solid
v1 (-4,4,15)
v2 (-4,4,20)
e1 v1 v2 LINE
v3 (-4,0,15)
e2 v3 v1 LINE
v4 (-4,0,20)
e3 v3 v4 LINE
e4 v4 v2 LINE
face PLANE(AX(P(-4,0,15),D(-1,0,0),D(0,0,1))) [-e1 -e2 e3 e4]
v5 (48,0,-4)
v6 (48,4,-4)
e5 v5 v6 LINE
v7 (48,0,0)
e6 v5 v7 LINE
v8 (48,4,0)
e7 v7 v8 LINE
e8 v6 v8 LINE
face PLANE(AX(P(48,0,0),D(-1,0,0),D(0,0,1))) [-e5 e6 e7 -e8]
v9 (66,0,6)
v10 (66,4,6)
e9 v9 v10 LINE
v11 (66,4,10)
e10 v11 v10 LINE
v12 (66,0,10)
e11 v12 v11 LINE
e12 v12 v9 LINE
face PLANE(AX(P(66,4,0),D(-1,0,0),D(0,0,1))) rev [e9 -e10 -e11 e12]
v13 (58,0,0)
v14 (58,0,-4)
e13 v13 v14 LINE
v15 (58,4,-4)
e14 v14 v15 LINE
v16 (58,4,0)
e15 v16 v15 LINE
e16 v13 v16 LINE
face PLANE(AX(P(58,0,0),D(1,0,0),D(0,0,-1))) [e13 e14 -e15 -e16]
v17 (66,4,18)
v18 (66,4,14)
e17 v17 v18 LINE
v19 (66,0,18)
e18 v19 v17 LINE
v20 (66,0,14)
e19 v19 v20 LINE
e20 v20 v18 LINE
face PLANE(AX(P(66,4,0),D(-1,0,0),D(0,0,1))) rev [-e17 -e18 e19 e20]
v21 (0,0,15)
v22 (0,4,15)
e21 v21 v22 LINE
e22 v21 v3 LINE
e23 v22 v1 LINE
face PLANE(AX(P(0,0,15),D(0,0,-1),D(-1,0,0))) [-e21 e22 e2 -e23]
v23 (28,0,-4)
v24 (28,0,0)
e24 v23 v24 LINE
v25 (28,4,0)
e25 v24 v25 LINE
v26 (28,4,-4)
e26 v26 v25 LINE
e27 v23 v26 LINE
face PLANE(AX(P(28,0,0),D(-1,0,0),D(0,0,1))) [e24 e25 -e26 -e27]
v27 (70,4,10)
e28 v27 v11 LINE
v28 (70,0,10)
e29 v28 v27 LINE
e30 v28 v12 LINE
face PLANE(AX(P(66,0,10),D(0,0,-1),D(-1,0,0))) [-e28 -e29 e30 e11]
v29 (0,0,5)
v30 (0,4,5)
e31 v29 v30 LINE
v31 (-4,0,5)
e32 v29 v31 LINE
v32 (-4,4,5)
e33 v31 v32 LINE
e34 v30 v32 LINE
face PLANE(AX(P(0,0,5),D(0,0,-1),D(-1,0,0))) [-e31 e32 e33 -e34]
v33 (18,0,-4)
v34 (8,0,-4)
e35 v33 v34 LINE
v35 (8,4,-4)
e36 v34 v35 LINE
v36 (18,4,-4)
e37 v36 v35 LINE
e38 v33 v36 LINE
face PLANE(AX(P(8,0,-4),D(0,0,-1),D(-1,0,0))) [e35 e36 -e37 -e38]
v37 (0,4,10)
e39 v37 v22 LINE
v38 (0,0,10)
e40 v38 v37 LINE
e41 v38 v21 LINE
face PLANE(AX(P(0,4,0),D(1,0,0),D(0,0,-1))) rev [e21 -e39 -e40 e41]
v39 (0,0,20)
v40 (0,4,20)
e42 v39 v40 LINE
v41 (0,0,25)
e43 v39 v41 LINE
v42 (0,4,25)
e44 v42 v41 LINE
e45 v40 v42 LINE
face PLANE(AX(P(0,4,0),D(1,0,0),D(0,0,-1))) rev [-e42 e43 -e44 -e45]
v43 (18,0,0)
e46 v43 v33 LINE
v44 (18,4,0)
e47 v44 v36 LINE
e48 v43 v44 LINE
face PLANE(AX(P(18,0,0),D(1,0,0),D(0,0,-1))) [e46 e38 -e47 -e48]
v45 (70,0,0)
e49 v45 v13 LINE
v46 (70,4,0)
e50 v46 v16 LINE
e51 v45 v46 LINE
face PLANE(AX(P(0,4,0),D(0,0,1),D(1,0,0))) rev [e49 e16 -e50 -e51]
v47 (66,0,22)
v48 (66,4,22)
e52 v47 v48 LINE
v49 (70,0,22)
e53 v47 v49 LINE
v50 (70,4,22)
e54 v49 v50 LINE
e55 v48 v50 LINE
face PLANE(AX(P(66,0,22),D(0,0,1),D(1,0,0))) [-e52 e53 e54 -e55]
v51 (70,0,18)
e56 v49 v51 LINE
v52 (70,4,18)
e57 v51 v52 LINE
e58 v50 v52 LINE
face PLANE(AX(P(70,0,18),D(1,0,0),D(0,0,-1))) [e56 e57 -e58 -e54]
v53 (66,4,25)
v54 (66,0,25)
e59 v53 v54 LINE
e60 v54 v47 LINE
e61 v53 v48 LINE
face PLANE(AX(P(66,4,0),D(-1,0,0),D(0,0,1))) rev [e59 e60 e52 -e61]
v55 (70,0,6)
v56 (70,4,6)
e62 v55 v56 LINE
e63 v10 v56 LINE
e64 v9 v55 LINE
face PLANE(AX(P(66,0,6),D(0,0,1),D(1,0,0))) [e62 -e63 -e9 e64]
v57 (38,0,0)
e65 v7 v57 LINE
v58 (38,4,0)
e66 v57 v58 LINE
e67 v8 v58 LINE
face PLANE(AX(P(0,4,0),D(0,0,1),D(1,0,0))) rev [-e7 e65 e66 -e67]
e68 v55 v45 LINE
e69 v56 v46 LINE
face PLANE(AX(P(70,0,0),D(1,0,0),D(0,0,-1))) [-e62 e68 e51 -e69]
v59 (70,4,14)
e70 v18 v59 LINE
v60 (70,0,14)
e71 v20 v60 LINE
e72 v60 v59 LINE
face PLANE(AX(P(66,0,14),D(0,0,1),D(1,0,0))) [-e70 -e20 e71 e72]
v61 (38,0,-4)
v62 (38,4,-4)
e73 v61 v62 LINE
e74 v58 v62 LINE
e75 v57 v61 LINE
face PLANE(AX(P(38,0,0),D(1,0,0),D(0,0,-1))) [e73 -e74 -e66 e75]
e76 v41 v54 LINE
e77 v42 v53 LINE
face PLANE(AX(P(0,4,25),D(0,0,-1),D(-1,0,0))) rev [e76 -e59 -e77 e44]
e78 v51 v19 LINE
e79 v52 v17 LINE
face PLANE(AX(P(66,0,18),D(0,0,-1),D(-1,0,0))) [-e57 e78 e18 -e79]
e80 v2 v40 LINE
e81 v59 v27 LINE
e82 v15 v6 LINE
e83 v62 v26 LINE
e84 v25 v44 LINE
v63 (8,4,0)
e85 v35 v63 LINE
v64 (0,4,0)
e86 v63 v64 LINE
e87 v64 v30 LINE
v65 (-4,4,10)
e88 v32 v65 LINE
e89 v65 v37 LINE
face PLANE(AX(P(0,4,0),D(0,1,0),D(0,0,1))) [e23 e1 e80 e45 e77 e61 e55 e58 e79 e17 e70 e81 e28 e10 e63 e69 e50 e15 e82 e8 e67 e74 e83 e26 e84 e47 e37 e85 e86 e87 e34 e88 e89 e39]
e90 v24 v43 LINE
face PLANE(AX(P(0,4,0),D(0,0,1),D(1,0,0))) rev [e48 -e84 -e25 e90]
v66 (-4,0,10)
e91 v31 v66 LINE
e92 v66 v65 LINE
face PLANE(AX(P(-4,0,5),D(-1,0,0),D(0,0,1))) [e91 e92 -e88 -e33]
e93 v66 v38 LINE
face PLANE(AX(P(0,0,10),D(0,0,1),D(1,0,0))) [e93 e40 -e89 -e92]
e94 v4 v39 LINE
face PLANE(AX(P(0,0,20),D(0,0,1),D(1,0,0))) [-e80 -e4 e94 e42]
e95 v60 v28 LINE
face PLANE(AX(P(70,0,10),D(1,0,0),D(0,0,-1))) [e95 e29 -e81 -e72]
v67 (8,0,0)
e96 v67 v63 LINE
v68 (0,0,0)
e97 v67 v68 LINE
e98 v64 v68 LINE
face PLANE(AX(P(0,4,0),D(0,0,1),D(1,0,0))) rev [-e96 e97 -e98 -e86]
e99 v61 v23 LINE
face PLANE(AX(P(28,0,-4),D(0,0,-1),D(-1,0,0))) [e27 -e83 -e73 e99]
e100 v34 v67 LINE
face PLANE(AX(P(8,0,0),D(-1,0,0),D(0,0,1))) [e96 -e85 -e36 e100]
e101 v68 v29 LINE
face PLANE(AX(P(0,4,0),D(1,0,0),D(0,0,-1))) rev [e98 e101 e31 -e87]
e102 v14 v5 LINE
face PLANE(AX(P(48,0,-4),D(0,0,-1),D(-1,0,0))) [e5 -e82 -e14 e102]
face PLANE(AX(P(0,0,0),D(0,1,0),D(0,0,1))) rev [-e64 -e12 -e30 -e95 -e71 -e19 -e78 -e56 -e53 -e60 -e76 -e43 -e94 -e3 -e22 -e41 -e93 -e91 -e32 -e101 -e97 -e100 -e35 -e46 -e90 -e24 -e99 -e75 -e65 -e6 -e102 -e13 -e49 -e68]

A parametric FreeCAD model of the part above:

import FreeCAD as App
import Part
import Sketcher
from FreeCAD import Vector

doc = App.newDocument("Part")
body = doc.addObject("PartDesign::Body", "Body")

# Sketch on XZ plane
sketch1 = body.newObject("Sketcher::SketchObject", "Sketch")
sketch1.AttachmentSupport = (doc.getObject("XZ_Plane"), [""])
sketch1.MapMode = "FlatFace"
sketch1.addGeometry(Part.LineSegment(Vector(0, 0, 0), Vector(0, 25, 0)), False)
sketch1.addGeometry(Part.LineSegment(Vector(0, 25, 0), Vector(66, 25, 0)), False)
sketch1.addGeometry(Part.LineSegment(Vector(66, 25, 0), Vector(66, 0, 0)), False)
sketch1.addGeometry(Part.LineSegment(Vector(66, 0, 0), Vector(0, 0, 0)), False)
sketch1.addConstraint(Sketcher.Constraint("Coincident", 0, 2, 1, 1))
sketch1.addConstraint(Sketcher.Constraint("Coincident", 1, 2, 2, 1))
sketch1.addConstraint(Sketcher.Constraint("Coincident", 2, 2, 3, 1))
sketch1.addConstraint(Sketcher.Constraint("Coincident", 3, 2, 0, 1))
sketch1.addConstraint(Sketcher.Constraint("Vertical", 0))
sketch1.addConstraint(Sketcher.Constraint("Horizontal", 1))
sketch1.addConstraint(Sketcher.Constraint("Vertical", 2))
sketch1.addConstraint(Sketcher.Constraint("Horizontal", 3))
sketch1.addConstraint(Sketcher.Constraint("Coincident", 3, 2, -1, 1))
sketch1.addConstraint(Sketcher.Constraint("DistanceX", 1, 1, 1, 2, 66.0))
sketch1.addConstraint(Sketcher.Constraint("DistanceY", 0, 1, 0, 2, 25.0))
pad1 = body.newObject("PartDesign::Pad", "Pad")
pad1.Profile = sketch1
pad1.Length = 4
pad1.Reversed = True

# Sketch on XZ plane
sketch2 = body.newObject("Sketcher::SketchObject", "Sketch001")
sketch2.AttachmentSupport = (doc.getObject("XZ_Plane"), [""])
sketch2.MapMode = "FlatFace"
sketch2.AttachmentOffset = App.Placement(Vector(0, 0, -4), App.Rotation())
sketch2.addGeometry(Part.LineSegment(Vector(-4, 5, 0), Vector(-4, 10, 0)), False)
sketch2.addGeometry(Part.LineSegment(Vector(-4, 10, 0), Vector(0, 10, 0)), False)
sketch2.addGeometry(Part.LineSegment(Vector(0, 10, 0), Vector(0, 5, 0)), False)
sketch2.addGeometry(Part.LineSegment(Vector(0, 5, 0), Vector(-4, 5, 0)), False)
sketch2.addConstraint(Sketcher.Constraint("Coincident", 0, 2, 1, 1))
sketch2.addConstraint(Sketcher.Constraint("Coincident", 1, 2, 2, 1))
sketch2.addConstraint(Sketcher.Constraint("Coincident", 2, 2, 3, 1))
sketch2.addConstraint(Sketcher.Constraint("Coincident", 3, 2, 0, 1))
sketch2.addConstraint(Sketcher.Constraint("Vertical", 0))
sketch2.addConstraint(Sketcher.Constraint("Horizontal", 1))
sketch2.addConstraint(Sketcher.Constraint("Vertical", 2))
sketch2.addConstraint(Sketcher.Constraint("Horizontal", 3))
sketch2.addConstraint(Sketcher.Constraint("PointOnObject", 1, 2, -2))
sketch2.addConstraint(Sketcher.Constraint("DistanceX", 1, 1, 1, 2, 4.0))
sketch2.addConstraint(Sketcher.Constraint("DistanceY", 0, 1, 0, 2, 5.0))
sketch2.addConstraint(Sketcher.Constraint("DistanceY", -1, 1, 0, 2, 10.0))
pad2 = body.newObject("PartDesign::Pad", "Pad001")
pad2.Profile = sketch2
pad2.Length = 4
doc.recompute()

linearpattern = body.newObject("PartDesign::LinearPattern", "LinearPattern")
linearpattern.Originals = [pad2]
linearpattern.Direction = (doc.getObject("Z_Axis"), [""])
linearpattern.Mode = "offset"
linearpattern.Offset = 10
linearpattern.Occurrences = 2
body.Tip = linearpattern

# Sketch on XZ plane
sketch3 = body.newObject("Sketcher::SketchObject", "Sketch002")
sketch3.AttachmentSupport = (doc.getObject("XZ_Plane"), [""])
sketch3.MapMode = "FlatFace"
sketch3.AttachmentOffset = App.Placement(Vector(0, 0, -4), App.Rotation())
sketch3.addGeometry(Part.LineSegment(Vector(28, -4, 0), Vector(28, 0, 0)), False)
sketch3.addGeometry(Part.LineSegment(Vector(28, 0, 0), Vector(38, 0, 0)), False)
sketch3.addGeometry(Part.LineSegment(Vector(38, 0, 0), Vector(38, -4, 0)), False)
sketch3.addGeometry(Part.LineSegment(Vector(38, -4, 0), Vector(28, -4, 0)), False)
sketch3.addConstraint(Sketcher.Constraint("Coincident", 0, 2, 1, 1))
sketch3.addConstraint(Sketcher.Constraint("Coincident", 1, 2, 2, 1))
sketch3.addConstraint(Sketcher.Constraint("Coincident", 2, 2, 3, 1))
sketch3.addConstraint(Sketcher.Constraint("Coincident", 3, 2, 0, 1))
sketch3.addConstraint(Sketcher.Constraint("Vertical", 0))
sketch3.addConstraint(Sketcher.Constraint("Horizontal", 1))
sketch3.addConstraint(Sketcher.Constraint("Vertical", 2))
sketch3.addConstraint(Sketcher.Constraint("Horizontal", 3))
sketch3.addConstraint(Sketcher.Constraint("PointOnObject", 0, 2, -1))
sketch3.addConstraint(Sketcher.Constraint("DistanceX", 1, 1, 1, 2, 10.0))
sketch3.addConstraint(Sketcher.Constraint("DistanceY", 0, 1, 0, 2, 4.0))
sketch3.addConstraint(Sketcher.Constraint("DistanceX", -1, 1, 0, 2, 28.0))
pad3 = body.newObject("PartDesign::Pad", "Pad002")
pad3.Profile = sketch3
pad3.Length = 4
doc.recompute()

linearpattern2 = body.newObject("PartDesign::LinearPattern", "LinearPattern001")
linearpattern2.Originals = [pad3]
linearpattern2.Direction = (doc.getObject("X_Axis"), [""])
linearpattern2.Mode = "offset"
linearpattern2.Offset = 20
linearpattern2.Occurrences = 2
body.Tip = linearpattern2
doc.recompute()

linearpattern3 = body.newObject("PartDesign::LinearPattern", "LinearPattern002")
linearpattern3.Originals = [pad3]
linearpattern3.Direction = (doc.getObject("X_Axis"), [""])
linearpattern3.Mode = "offset"
linearpattern3.Offset = 20
linearpattern3.Occurrences = 2
linearpattern3.Reversed = True
body.Tip = linearpattern3

# Sketch on XZ plane
sketch4 = body.newObject("Sketcher::SketchObject", "Sketch003")
sketch4.AttachmentSupport = (doc.getObject("XZ_Plane"), [""])
sketch4.MapMode = "FlatFace"
sketch4.AttachmentOffset = App.Placement(Vector(0, 0, -4), App.Rotation())
sketch4.addGeometry(Part.LineSegment(Vector(66, 0, 0), Vector(66, 6, 0)), False)
sketch4.addGeometry(Part.LineSegment(Vector(66, 6, 0), Vector(70, 6, 0)), False)
sketch4.addGeometry(Part.LineSegment(Vector(70, 6, 0), Vector(70, 0, 0)), False)
sketch4.addGeometry(Part.LineSegment(Vector(70, 0, 0), Vector(66, 0, 0)), False)
sketch4.addGeometry(Part.LineSegment(Vector(66, 10, 0), Vector(66, 14, 0)), False)
sketch4.addGeometry(Part.LineSegment(Vector(66, 14, 0), Vector(70, 14, 0)), False)
sketch4.addGeometry(Part.LineSegment(Vector(70, 14, 0), Vector(70, 10, 0)), False)
sketch4.addGeometry(Part.LineSegment(Vector(70, 10, 0), Vector(66, 10, 0)), False)
sketch4.addGeometry(Part.LineSegment(Vector(66, 18, 0), Vector(66, 22, 0)), False)
sketch4.addGeometry(Part.LineSegment(Vector(66, 22, 0), Vector(70, 22, 0)), False)
sketch4.addGeometry(Part.LineSegment(Vector(70, 22, 0), Vector(70, 18, 0)), False)
sketch4.addGeometry(Part.LineSegment(Vector(70, 18, 0), Vector(66, 18, 0)), False)
sketch4.addConstraint(Sketcher.Constraint("Coincident", 0, 2, 1, 1))
sketch4.addConstraint(Sketcher.Constraint("Coincident", 1, 2, 2, 1))
sketch4.addConstraint(Sketcher.Constraint("Coincident", 2, 2, 3, 1))
sketch4.addConstraint(Sketcher.Constraint("Coincident", 3, 2, 0, 1))
sketch4.addConstraint(Sketcher.Constraint("Coincident", 4, 2, 5, 1))
sketch4.addConstraint(Sketcher.Constraint("Coincident", 5, 2, 6, 1))
sketch4.addConstraint(Sketcher.Constraint("Coincident", 6, 2, 7, 1))
sketch4.addConstraint(Sketcher.Constraint("Coincident", 7, 2, 4, 1))
sketch4.addConstraint(Sketcher.Constraint("Coincident", 8, 2, 9, 1))
sketch4.addConstraint(Sketcher.Constraint("Coincident", 9, 2, 10, 1))
sketch4.addConstraint(Sketcher.Constraint("Coincident", 10, 2, 11, 1))
sketch4.addConstraint(Sketcher.Constraint("Coincident", 11, 2, 8, 1))
sketch4.addConstraint(Sketcher.Constraint("Vertical", 0))
sketch4.addConstraint(Sketcher.Constraint("Horizontal", 1))
sketch4.addConstraint(Sketcher.Constraint("Vertical", 2))
sketch4.addConstraint(Sketcher.Constraint("Horizontal", 3))
sketch4.addConstraint(Sketcher.Constraint("Vertical", 4))
sketch4.addConstraint(Sketcher.Constraint("Horizontal", 5))
sketch4.addConstraint(Sketcher.Constraint("Vertical", 6))
sketch4.addConstraint(Sketcher.Constraint("Horizontal", 7))
sketch4.addConstraint(Sketcher.Constraint("Vertical", 8))
sketch4.addConstraint(Sketcher.Constraint("Horizontal", 9))
sketch4.addConstraint(Sketcher.Constraint("Vertical", 10))
sketch4.addConstraint(Sketcher.Constraint("Horizontal", 11))
sketch4.addConstraint(Sketcher.Constraint("PointOnObject", 2, 2, -1))
sketch4.addConstraint(Sketcher.Constraint("Vertical", 3, 2, 4, 2))
sketch4.addConstraint(Sketcher.Constraint("Vertical", 2, 2, 5, 2))
sketch4.addConstraint(Sketcher.Constraint("Vertical", 7, 2, 8, 2))
sketch4.addConstraint(Sketcher.Constraint("Vertical", 6, 2, 9, 2))
sketch4.addConstraint(Sketcher.Constraint("Equal", 11, 4))
sketch4.addConstraint(Sketcher.Constraint("Equal", 6, 8))
sketch4.addConstraint(Sketcher.Constraint("DistanceX", 1, 1, 1, 2, 4.0))
sketch4.addConstraint(Sketcher.Constraint("DistanceY", 0, 1, 0, 2, 6.0))
sketch4.addConstraint(Sketcher.Constraint("DistanceX", -1, 1, 0, 2, 66.0))
sketch4.addConstraint(Sketcher.Constraint("DistanceY", -1, 1, 4, 2, 14.0))
sketch4.addConstraint(Sketcher.Constraint("DistanceY", -1, 1, 8, 2, 22.0))
pad4 = body.newObject("PartDesign::Pad", "Pad003")
pad4.Profile = sketch4
pad4.Length = 4

doc.recompute()
